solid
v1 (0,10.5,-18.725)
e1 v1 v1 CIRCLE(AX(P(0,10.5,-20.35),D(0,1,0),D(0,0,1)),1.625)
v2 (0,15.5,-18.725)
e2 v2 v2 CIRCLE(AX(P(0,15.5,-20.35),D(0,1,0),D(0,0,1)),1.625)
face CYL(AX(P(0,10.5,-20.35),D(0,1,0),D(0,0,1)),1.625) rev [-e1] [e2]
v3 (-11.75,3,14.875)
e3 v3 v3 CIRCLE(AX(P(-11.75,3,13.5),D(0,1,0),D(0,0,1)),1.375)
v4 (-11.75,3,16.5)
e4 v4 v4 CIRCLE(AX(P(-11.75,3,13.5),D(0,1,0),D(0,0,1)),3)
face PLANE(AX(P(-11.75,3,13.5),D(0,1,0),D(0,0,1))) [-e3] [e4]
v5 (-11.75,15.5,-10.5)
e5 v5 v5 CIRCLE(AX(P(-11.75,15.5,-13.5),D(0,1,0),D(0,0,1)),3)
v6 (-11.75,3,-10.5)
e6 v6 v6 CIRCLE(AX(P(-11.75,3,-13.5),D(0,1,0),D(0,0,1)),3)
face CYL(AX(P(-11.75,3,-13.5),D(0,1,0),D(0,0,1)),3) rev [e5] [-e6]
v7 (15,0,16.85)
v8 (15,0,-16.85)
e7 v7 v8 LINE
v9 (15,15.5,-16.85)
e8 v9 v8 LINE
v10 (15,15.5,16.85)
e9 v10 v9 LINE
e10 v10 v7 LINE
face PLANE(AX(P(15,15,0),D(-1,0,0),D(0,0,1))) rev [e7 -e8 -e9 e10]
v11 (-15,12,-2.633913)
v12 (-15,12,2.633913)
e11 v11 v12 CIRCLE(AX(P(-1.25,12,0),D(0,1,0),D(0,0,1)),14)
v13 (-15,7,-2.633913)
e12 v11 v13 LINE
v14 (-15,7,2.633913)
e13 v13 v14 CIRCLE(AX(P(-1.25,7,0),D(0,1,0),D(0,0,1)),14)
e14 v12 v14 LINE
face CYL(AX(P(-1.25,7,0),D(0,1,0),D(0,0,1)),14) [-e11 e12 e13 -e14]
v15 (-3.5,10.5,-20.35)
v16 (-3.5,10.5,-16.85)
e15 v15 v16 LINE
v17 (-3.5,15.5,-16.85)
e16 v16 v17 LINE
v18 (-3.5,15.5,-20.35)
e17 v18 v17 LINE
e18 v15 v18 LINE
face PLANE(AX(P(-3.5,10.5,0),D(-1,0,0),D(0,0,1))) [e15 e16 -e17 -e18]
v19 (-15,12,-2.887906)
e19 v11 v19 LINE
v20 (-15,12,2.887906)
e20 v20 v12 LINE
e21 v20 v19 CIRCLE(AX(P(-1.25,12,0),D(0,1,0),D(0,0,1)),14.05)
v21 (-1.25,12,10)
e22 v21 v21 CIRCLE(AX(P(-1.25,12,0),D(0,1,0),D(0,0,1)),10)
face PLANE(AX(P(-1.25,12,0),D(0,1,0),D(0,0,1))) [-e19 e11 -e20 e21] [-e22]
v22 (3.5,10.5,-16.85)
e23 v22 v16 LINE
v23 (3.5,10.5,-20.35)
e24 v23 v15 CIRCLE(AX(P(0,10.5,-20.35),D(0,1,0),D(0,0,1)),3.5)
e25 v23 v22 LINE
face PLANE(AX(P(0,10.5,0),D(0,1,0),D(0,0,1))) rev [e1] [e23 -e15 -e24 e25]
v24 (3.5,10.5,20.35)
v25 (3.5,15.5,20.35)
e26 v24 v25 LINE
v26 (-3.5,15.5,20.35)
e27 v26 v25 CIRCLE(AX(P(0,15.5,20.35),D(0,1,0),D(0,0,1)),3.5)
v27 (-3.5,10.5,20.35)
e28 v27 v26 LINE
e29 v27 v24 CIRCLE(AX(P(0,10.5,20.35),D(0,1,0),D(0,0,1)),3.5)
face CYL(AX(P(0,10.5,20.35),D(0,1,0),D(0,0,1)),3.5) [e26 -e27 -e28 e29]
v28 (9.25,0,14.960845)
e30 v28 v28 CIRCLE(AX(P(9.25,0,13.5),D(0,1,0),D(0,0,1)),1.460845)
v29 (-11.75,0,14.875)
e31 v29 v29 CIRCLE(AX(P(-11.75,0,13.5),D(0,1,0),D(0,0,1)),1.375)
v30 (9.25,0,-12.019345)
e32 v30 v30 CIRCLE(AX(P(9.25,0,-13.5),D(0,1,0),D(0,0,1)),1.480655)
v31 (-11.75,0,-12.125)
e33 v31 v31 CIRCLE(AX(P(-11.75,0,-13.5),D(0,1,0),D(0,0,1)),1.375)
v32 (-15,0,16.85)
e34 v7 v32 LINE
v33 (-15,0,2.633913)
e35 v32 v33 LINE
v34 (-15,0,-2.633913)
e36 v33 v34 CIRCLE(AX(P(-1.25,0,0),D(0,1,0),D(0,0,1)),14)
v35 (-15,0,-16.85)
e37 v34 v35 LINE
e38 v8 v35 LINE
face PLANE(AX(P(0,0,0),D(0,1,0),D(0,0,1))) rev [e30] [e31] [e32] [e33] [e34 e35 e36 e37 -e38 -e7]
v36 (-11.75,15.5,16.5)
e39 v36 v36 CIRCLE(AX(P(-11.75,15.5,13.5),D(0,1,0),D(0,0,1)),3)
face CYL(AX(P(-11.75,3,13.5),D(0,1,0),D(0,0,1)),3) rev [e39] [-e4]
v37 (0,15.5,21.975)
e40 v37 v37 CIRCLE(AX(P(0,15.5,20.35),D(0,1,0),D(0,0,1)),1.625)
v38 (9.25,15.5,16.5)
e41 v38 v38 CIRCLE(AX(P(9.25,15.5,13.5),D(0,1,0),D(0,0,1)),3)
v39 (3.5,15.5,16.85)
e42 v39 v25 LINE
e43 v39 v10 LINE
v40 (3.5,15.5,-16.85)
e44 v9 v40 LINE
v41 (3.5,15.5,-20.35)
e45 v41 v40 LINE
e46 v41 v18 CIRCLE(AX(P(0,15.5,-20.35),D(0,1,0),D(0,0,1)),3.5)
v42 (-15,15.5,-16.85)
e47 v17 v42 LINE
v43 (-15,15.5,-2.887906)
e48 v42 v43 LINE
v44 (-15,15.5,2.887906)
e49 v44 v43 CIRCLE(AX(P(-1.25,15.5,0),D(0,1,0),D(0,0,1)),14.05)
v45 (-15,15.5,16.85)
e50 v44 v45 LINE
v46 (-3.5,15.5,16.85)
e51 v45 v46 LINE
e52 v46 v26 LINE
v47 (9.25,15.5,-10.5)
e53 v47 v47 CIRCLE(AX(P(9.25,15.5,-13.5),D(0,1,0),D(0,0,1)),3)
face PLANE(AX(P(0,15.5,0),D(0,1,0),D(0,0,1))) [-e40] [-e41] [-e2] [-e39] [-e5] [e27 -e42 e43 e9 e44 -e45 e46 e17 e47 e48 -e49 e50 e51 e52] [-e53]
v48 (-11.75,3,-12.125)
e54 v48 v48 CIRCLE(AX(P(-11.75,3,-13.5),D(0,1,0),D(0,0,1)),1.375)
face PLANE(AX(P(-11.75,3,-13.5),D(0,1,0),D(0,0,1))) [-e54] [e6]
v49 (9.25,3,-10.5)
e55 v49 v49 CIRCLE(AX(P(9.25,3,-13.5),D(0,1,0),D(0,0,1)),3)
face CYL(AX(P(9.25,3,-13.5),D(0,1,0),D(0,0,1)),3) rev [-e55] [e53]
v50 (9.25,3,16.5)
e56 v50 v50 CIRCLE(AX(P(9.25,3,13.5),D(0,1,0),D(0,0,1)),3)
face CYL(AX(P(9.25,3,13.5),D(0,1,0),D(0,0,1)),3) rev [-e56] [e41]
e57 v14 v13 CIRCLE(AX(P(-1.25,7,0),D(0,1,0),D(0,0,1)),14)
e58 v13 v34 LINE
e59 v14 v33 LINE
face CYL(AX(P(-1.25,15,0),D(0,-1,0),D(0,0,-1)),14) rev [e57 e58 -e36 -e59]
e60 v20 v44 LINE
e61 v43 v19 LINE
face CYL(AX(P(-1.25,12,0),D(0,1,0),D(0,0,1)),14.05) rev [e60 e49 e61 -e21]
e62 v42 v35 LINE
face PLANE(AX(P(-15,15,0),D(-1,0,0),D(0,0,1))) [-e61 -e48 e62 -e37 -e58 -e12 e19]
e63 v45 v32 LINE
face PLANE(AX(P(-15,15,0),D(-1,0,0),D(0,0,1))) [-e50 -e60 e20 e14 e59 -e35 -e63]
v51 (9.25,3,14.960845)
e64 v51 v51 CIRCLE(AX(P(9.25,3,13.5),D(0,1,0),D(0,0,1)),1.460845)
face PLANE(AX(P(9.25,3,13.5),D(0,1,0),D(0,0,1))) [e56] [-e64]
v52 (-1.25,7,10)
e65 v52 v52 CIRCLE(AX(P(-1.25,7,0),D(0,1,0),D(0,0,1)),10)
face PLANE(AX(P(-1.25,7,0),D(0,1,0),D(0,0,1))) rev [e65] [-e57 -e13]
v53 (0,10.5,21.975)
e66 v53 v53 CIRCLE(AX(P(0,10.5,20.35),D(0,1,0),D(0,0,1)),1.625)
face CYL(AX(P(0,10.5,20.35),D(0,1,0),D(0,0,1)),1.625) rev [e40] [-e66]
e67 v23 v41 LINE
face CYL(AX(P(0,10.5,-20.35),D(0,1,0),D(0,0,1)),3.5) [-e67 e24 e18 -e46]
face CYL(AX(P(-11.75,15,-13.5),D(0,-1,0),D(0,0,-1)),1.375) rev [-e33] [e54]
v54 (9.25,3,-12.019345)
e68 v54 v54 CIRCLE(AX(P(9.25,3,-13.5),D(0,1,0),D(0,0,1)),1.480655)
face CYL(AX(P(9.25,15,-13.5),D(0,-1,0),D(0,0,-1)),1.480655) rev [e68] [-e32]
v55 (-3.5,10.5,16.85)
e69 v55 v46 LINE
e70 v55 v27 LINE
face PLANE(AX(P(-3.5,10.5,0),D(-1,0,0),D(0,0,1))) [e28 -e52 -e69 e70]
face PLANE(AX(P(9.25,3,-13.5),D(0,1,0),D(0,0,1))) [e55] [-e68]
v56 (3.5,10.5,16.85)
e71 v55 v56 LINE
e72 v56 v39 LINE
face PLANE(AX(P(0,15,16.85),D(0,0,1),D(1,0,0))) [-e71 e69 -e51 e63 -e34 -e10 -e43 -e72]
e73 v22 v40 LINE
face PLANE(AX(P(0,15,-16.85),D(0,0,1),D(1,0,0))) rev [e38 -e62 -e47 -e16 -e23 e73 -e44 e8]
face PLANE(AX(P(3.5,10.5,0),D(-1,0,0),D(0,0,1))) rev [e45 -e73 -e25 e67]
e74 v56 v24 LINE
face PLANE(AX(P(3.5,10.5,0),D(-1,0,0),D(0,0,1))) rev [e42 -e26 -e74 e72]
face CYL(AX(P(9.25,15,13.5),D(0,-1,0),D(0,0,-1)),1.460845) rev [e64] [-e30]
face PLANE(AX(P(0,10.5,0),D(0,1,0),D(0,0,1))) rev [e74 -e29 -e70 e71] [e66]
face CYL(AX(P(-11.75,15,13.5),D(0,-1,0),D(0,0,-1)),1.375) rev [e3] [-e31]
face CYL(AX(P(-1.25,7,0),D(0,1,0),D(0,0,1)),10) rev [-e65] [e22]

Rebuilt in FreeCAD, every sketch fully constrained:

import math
import FreeCAD as App
import Part
import Sketcher
from FreeCAD import Vector
Q = App.Units.Quantity

doc = App.newDocument("Part")
body = doc.addObject("PartDesign::Body", "Body")

sketch1 = body.newObject("Sketcher::SketchObject", "Sketch")
sketch1.AttachmentSupport = (doc.getObject("XZ_Plane"), [""])
sketch1.MapMode = "FlatFace"
sketch1.addGeometry(Part.LineSegment(Vector(-15, 16.9, 0), Vector(15, 16.9, 0)), False)
sketch1.addGeometry(Part.LineSegment(Vector(15, 16.9, 0), Vector(15, -16.9, 0)), False)
sketch1.addGeometry(Part.LineSegment(Vector(15, -16.9, 0), Vector(-15, -16.9, 0)), False)
sketch1.addGeometry(Part.LineSegment(Vector(-15, -16.9, 0), Vector(-15, -2.6, 0)), False)
sketch1.addGeometry(Part.ArcOfCircle(Part.Circle(Vector(-1.2, 0, 0), Vector(0, 0, 1), 14), math.radians(-169), math.radians(0)), False)
sketch1.addGeometry(Part.ArcOfCircle(Part.Circle(Vector(-1.2, 0, 0), Vector(0, 0, 1), 14), math.radians(0), math.radians(169)), False)
sketch1.addGeometry(Part.LineSegment(Vector(-15, 2.6, 0), Vector(-15, 16.9, 0)), False)
sketch1.addGeometry(Part.Circle(Vector(-11.8, 13.5, 0), Vector(0, 0, 1), 1.4), False)
sketch1.addGeometry(Part.Circle(Vector(9.2, 13.5, 0), Vector(0, 0, 1), 1.5), False)
sketch1.addGeometry(Part.Circle(Vector(-11.8, -13.5, 0), Vector(0, 0, 1), 1.4), False)
sketch1.addGeometry(Part.Circle(Vector(9.2, -13.5, 0), Vector(0, 0, 1), 1.5), False)
sketch1.addConstraint(Sketcher.Constraint("Coincident", 0, 2, 1, 1))
sketch1.addConstraint(Sketcher.Constraint("Coincident", 1, 2, 2, 1))
sketch1.addConstraint(Sketcher.Constraint("Coincident", 2, 2, 3, 1))
sketch1.addConstraint(Sketcher.Constraint("Coincident", 3, 2, 4, 1))
sketch1.addConstraint(Sketcher.Constraint("Tangent", 4, 2, 5, 1))
sketch1.addConstraint(Sketcher.Constraint("Coincident", 5, 2, 6, 1))
sketch1.addConstraint(Sketcher.Constraint("Coincident", 6, 2, 0, 1))
sketch1.addConstraint(Sketcher.Constraint("Horizontal", 0))
sketch1.addConstraint(Sketcher.Constraint("Vertical", 1))
sketch1.addConstraint(Sketcher.Constraint("Horizontal", 2))
sketch1.addConstraint(Sketcher.Constraint("Vertical", 3))
sketch1.addConstraint(Sketcher.Constraint("Vertical", 6))
sketch1.addConstraint(Sketcher.Constraint("Equal", 4, 5))
sketch1.addConstraint(Sketcher.Constraint("Equal", 7, 9))
sketch1.addConstraint(Sketcher.Constraint("Symmetric", 0, 2, 2, 2, -1, 1))
sketch1.addConstraint(Sketcher.Constraint("Symmetric", 7, 3, 9, 3, -1))
sketch1.addConstraint(Sketcher.Constraint("Symmetric", 8, 3, 10, 3, -1))
sketch1.addConstraint(Sketcher.Constraint("Symmetric", 3, 2, 5, 2, -1))
sketch1.addConstraint(Sketcher.Constraint("PointOnObject", 4, 2, -1))
sketch1.addConstraint(Sketcher.Constraint("Horizontal", 7, 3, 8, 3))
sketch1.addConstraint(Sketcher.Constraint("Radius", 4, Q("14 mm")))
sketch1.addConstraint(Sketcher.Constraint("Diameter", 7, Q("2.75 mm")))
sketch1.addConstraint(Sketcher.Constraint("DistanceX", 0, 1, 0, 2, Q("30 mm")))
sketch1.addConstraint(Sketcher.Constraint("DistanceY", 1, 2, 1, 1, Q("33.7 mm")))
sketch1.addConstraint(Sketcher.Constraint("DistanceX", 7, 3, 8, 3, Q("21 mm")))
sketch1.addConstraint(Sketcher.Constraint("DistanceY", 9, 3, 7, 3, Q("27 mm")))
sketch1.addConstraint(Sketcher.Constraint("DistanceX", 7, 3, 4, 3, Q("10.5 mm")))
sketch1.addConstraint(Sketcher.Constraint("Diameter", 8, Q("2.921691 mm")))
sketch1.addConstraint(Sketcher.Constraint("Diameter", 10, Q("2.961311 mm")))
sketch1.addConstraint(Sketcher.Constraint("DistanceX", 4, 3, -1, 1, Q("1.25 mm")))
pad1 = body.newObject("PartDesign::Pad", "Pad")
pad1.Profile = sketch1
pad1.Length = 15
pad1.Reversed = True

sketch2 = body.newObject("Sketcher::SketchObject", "Sketch001")
sketch2.AttachmentSupport = (doc.getObject("XZ_Plane"), [""])
sketch2.MapMode = "FlatFace"
sketch2.AttachmentOffset = App.Placement(Vector(0, 0, -7), App.Rotation())
sketch2.addGeometry(Part.Circle(Vector(-1, 0, 0), Vector(0, 0, 1), 14), False)
sketch2.addGeometry(Part.Circle(Vector(-1, 0, 0), Vector(0, 0, 1), 10), False)
sketch2.addConstraint(Sketcher.Constraint("Coincident", 1, 3, 0, 3))
sketch2.addConstraint(Sketcher.Constraint("PointOnObject", 0, 3, -1))
sketch2.addConstraint(Sketcher.Constraint("Diameter", 0, Q("28 mm")))
sketch2.addConstraint(Sketcher.Constraint("Diameter", 1, Q("20 mm")))
sketch2.addConstraint(Sketcher.Constraint("DistanceX", 0, 3, -1, 1, Q("1.25 mm")))
pad2 = body.newObject("PartDesign::Pad", "Pad001")
pad2.Profile = sketch2
pad2.Length = 8
pad2.Reversed = True

sketch3 = body.newObject("Sketcher::SketchObject", "Sketch002")
sketch3.AttachmentSupport = (doc.getObject("XZ_Plane"), [""])
sketch3.MapMode = "FlatFace"
sketch3.AttachmentOffset = App.Placement(Vector(0, 0, -12), App.Rotation())
sketch3.addGeometry(Part.Circle(Vector(-1, 0, 0), Vector(0, 0, 1), 14), False)
sketch3.addGeometry(Part.Circle(Vector(-1, 0, 0), Vector(0, 0, 1), 10), False)
sketch3.addConstraint(Sketcher.Constraint("Coincident", 1, 3, 0, 3))
sketch3.addConstraint(Sketcher.Constraint("PointOnObject", 0, 3, -1))
sketch3.addConstraint(Sketcher.Constraint("Diameter", 0, Q("28 mm")))
sketch3.addConstraint(Sketcher.Constraint("Diameter", 1, Q("20 mm")))
sketch3.addConstraint(Sketcher.Constraint("DistanceX", 0, 3, -1, 1, Q("1.25 mm")))
pocket1 = body.newObject("PartDesign::Pocket", "Pocket")
pocket1.Profile = sketch3
pocket1.Length = 3

sketch4 = body.newObject("Sketcher::SketchObject", "Sketch003")
sketch4.AttachmentSupport = (doc.getObject("XZ_Plane"), [""])
sketch4.MapMode = "FlatFace"
sketch4.AttachmentOffset = App.Placement(Vector(0, 0, -15), App.Rotation())
sketch4.addGeometry(Part.LineSegment(Vector(-15, -16.9, 0), Vector(-15, -2.6, 0)), False)
sketch4.addGeometry(Part.ArcOfCircle(Part.Circle(Vector(-1.2, 0, 0), Vector(0, 0, 1), 14), math.radians(-169), math.radians(169)), False)
sketch4.addGeometry(Part.LineSegment(Vector(-15, 2.6, 0), Vector(-15, 16.9, 0)), False)
sketch4.addGeometry(Part.LineSegment(Vector(-15, 16.9, 0), Vector(15, 16.9, 0)), False)
sketch4.addGeometry(Part.LineSegment(Vector(15, 16.9, 0), Vector(15, -16.9, 0)), False)
sketch4.addGeometry(Part.LineSegment(Vector(15, -16.9, 0), Vector(-15, -16.9, 0)), False)
sketch4.addGeometry(Part.Circle(Vector(-11.8, 13.5, 0), Vector(0, 0, 1), 1.4), False)
sketch4.addGeometry(Part.Circle(Vector(9.2, 13.5, 0), Vector(0, 0, 1), 1.5), False)
sketch4.addGeometry(Part.Circle(Vector(-11.8, -13.5, 0), Vector(0, 0, 1), 1.4), False)
sketch4.addGeometry(Part.Circle(Vector(9.2, -13.5, 0), Vector(0, 0, 1), 1.5), False)
sketch4.addConstraint(Sketcher.Constraint("Coincident", 0, 2, 1, 1))
sketch4.addConstraint(Sketcher.Constraint("Coincident", 1, 2, 2, 1))
sketch4.addConstraint(Sketcher.Constraint("Coincident", 2, 2, 3, 1))
sketch4.addConstraint(Sketcher.Constraint("Coincident", 3, 2, 4, 1))
sketch4.addConstraint(Sketcher.Constraint("Coincident", 4, 2, 5, 1))
sketch4.addConstraint(Sketcher.Constraint("Coincident", 5, 2, 0, 1))
sketch4.addConstraint(Sketcher.Constraint("Vertical", 0))
sketch4.addConstraint(Sketcher.Constraint("Vertical", 2))
sketch4.addConstraint(Sketcher.Constraint("Horizontal", 3))
sketch4.addConstraint(Sketcher.Constraint("Vertical", 4))
sketch4.addConstraint(Sketcher.Constraint("Horizontal", 5))
sketch4.addConstraint(Sketcher.Constraint("Equal", 6, 8))
sketch4.addConstraint(Sketcher.Constraint("Symmetric", 2, 2, 4, 2, -1, 1))
sketch4.addConstraint(Sketcher.Constraint("Symmetric", 6, 3, 8, 3, -1))
sketch4.addConstraint(Sketcher.Constraint("Symmetric", 7, 3, 9, 3, -1))
sketch4.addConstraint(Sketcher.Constraint("Symmetric", 0, 2, 1, 2, -1))
sketch4.addConstraint(Sketcher.Constraint("Horizontal", 6, 3, 7, 3))
sketch4.addConstraint(Sketcher.Constraint("Radius", 1, Q("14 mm")))
sketch4.addConstraint(Sketcher.Constraint("Diameter", 6, Q("2.75 mm")))
sketch4.addConstraint(Sketcher.Constraint("DistanceX", 3, 1, 3, 2, Q("30 mm")))
sketch4.addConstraint(Sketcher.Constraint("DistanceY", 4, 2, 4, 1, Q("33.7 mm")))
sketch4.addConstraint(Sketcher.Constraint("DistanceX", 6, 3, 7, 3, Q("21 mm")))
sketch4.addConstraint(Sketcher.Constraint("DistanceY", 8, 3, 6, 3, Q("27 mm")))
sketch4.addConstraint(Sketcher.Constraint("DistanceX", 6, 3, 1, 3, Q("10.5 mm")))
sketch4.addConstraint(Sketcher.Constraint("Diameter", 7, Q("2.921691 mm")))
sketch4.addConstraint(Sketcher.Constraint("Diameter", 9, Q("2.961311 mm")))
sketch4.addConstraint(Sketcher.Constraint("DistanceX", 1, 3, -1, 1, Q("1.25 mm")))
pad3 = body.newObject("PartDesign::Pad", "Pad002")
pad3.Profile = sketch4
pad3.Length = 0.5
pad3.Reversed = True

sketch5 = body.newObject("Sketcher::SketchObject", "Sketch004")
sketch5.AttachmentSupport = (doc.getObject("XZ_Plane"), [""])
sketch5.MapMode = "FlatFace"
sketch5.AttachmentOffset = App.Placement(Vector(0, 0, -15.5), App.Rotation())
sketch5.addGeometry(Part.LineSegment(Vector(3.5, -16.9, 0), Vector(3.5, -20.4, 0)), False)
sketch5.addGeometry(Part.ArcOfCircle(Part.Circle(Vector(0, -20.4, 0), Vector(0, 0, 1), 3.5), math.radians(180), math.radians(360)), False)
sketch5.addGeometry(Part.LineSegment(Vector(-3.5, -20.4, 0), Vector(-3.5, -16.9, 0)), False)
sketch5.addGeometry(Part.LineSegment(Vector(-3.5, -16.9, 0), Vector(3.5, -16.9, 0)), False)
sketch5.addGeometry(Part.Circle(Vector(0, -20.4, 0), Vector(0, 0, 1), 1.6), False)
sketch5.addGeometry(Part.LineSegment(Vector(3.5, 20.4, 0), Vector(3.5, 16.9, 0)), False)
sketch5.addGeometry(Part.LineSegment(Vector(3.5, 16.9, 0), Vector(-3.5, 16.9, 0)), False)
sketch5.addGeometry(Part.LineSegment(Vector(-3.5, 16.9, 0), Vector(-3.5, 20.4, 0)), False)
sketch5.addGeometry(Part.ArcOfCircle(Part.Circle(Vector(0, 20.4, 0), Vector(0, 0, 1), 3.5), math.radians(0), math.radians(180)), False)
sketch5.addGeometry(Part.Circle(Vector(0, 20.4, 0), Vector(0, 0, 1), 1.6), False)
sketch5.addConstraint(Sketcher.Constraint("Tangent", 0, 2, 1, 2))
sketch5.addConstraint(Sketcher.Constraint("Tangent", 1, 1, 2, 1))
sketch5.addConstraint(Sketcher.Constraint("Coincident", 2, 2, 3, 1))
sketch5.addConstraint(Sketcher.Constraint("Coincident", 3, 2, 0, 1))
sketch5.addConstraint(Sketcher.Constraint("Coincident", 5, 2, 6, 1))
sketch5.addConstraint(Sketcher.Constraint("Coincident", 6, 2, 7, 1))
sketch5.addConstraint(Sketcher.Constraint("Tangent", 7, 2, 8, 2))
sketch5.addConstraint(Sketcher.Constraint("Tangent", 8, 1, 5, 1))
sketch5.addConstraint(Sketcher.Constraint("Vertical", 0))
sketch5.addConstraint(Sketcher.Constraint("Vertical", 2))
sketch5.addConstraint(Sketcher.Constraint("Horizontal", 3))
sketch5.addConstraint(Sketcher.Constraint("Vertical", 5))
sketch5.addConstraint(Sketcher.Constraint("Horizontal", 6))
sketch5.addConstraint(Sketcher.Constraint("Vertical", 7))
sketch5.addConstraint(Sketcher.Constraint("Coincident", 4, 3, 1, 3))
sketch5.addConstraint(Sketcher.Constraint("Coincident", 9, 3, 8, 3))
sketch5.addConstraint(Sketcher.Constraint("Equal", 1, 8))
sketch5.addConstraint(Sketcher.Constraint("Equal", 4, 9))
sketch5.addConstraint(Sketcher.Constraint("Symmetric", 1, 3, 8, 3, -1, 1))
sketch5.addConstraint(Sketcher.Constraint("Symmetric", 3, 2, 5, 2, -1))
sketch5.addConstraint(Sketcher.Constraint("Radius", 1, Q("3.5 mm")))
sketch5.addConstraint(Sketcher.Constraint("Diameter", 4, Q("3.25 mm")))
sketch5.addConstraint(Sketcher.Constraint("DistanceY", 0, 2, 0, 1, Q("3.5 mm")))
sketch5.addConstraint(Sketcher.Constraint("DistanceY", 1, 3, 8, 3, Q("40.7 mm")))
pad4 = body.newObject("PartDesign::Pad", "Pad003")
pad4.Profile = sketch5
pad4.Length = 5

sketch6 = body.newObject("Sketcher::SketchObject", "Sketch005")
sketch6.AttachmentSupport = (doc.getObject("XZ_Plane"), [""])
sketch6.MapMode = "FlatFace"
sketch6.AttachmentOffset = App.Placement(Vector(0, 0, -15.5), App.Rotation())
sketch6.addGeometry(Part.Circle(Vector(-11.8, -13.5, 0), Vector(0, 0, 1), 3), False)
sketch6.addGeometry(Part.Circle(Vector(9.2, -13.5, 0), Vector(0, 0, 1), 3), False)
sketch6.addGeometry(Part.Circle(Vector(9.2, 13.5, 0), Vector(0, 0, 1), 3), False)
sketch6.addGeometry(Part.Circle(Vector(-11.8, 13.5, 0), Vector(0, 0, 1), 3), False)
sketch6.addConstraint(Sketcher.Constraint("Equal", 0, 1))
sketch6.addConstraint(Sketcher.Constraint("Equal", 1, 2))
sketch6.addConstraint(Sketcher.Constraint("Equal", 2, 3))
sketch6.addConstraint(Sketcher.Constraint("Symmetric", 1, 3, 2, 3, -1))
sketch6.addConstraint(Sketcher.Constraint("Symmetric", 0, 3, 3, 3, -1))
sketch6.addConstraint(Sketcher.Constraint("Horizontal", 0, 3, 1, 3))
sketch6.addConstraint(Sketcher.Constraint("Diameter", 0, Q("6 mm")))
sketch6.addConstraint(Sketcher.Constraint("DistanceX", 0, 3, 1, 3, Q("21 mm")))
sketch6.addConstraint(Sketcher.Constraint("DistanceY", 1, 3, 2, 3, Q("27 mm")))
sketch6.addConstraint(Sketcher.Constraint("DistanceX", 0, 3, -1, 1, Q("11.75 mm")))
pocket2 = body.newObject("PartDesign::Pocket", "Pocket001")
pocket2.Profile = sketch6
pocket2.Length = 12.5
pocket2.Reversed = True

sketch7 = body.newObject("Sketcher::SketchObject", "Sketch006")
sketch7.AttachmentSupport = (doc.getObject("XZ_Plane"), [""])
sketch7.MapMode = "FlatFace"
sketch7.AttachmentOffset = App.Placement(Vector(0, 0, -15.5), App.Rotation())
sketch7.addGeometry(Part.Circle(Vector(-1, 0, 0), Vector(0, 0, 1), 14), False)
sketch7.addConstraint(Sketcher.Constraint("PointOnObject", 0, 3, -1))
sketch7.addConstraint(Sketcher.Constraint("Diameter", 0, Q("28.1 mm")))
sketch7.addConstraint(Sketcher.Constraint("DistanceX", 0, 3, -1, 1, Q("1.25 mm")))
pocket3 = body.newObject("PartDesign::Pocket", "Pocket002")
pocket3.Profile = sketch7
pocket3.Length = 3.5
pocket3.Reversed = True

doc.recompute()
